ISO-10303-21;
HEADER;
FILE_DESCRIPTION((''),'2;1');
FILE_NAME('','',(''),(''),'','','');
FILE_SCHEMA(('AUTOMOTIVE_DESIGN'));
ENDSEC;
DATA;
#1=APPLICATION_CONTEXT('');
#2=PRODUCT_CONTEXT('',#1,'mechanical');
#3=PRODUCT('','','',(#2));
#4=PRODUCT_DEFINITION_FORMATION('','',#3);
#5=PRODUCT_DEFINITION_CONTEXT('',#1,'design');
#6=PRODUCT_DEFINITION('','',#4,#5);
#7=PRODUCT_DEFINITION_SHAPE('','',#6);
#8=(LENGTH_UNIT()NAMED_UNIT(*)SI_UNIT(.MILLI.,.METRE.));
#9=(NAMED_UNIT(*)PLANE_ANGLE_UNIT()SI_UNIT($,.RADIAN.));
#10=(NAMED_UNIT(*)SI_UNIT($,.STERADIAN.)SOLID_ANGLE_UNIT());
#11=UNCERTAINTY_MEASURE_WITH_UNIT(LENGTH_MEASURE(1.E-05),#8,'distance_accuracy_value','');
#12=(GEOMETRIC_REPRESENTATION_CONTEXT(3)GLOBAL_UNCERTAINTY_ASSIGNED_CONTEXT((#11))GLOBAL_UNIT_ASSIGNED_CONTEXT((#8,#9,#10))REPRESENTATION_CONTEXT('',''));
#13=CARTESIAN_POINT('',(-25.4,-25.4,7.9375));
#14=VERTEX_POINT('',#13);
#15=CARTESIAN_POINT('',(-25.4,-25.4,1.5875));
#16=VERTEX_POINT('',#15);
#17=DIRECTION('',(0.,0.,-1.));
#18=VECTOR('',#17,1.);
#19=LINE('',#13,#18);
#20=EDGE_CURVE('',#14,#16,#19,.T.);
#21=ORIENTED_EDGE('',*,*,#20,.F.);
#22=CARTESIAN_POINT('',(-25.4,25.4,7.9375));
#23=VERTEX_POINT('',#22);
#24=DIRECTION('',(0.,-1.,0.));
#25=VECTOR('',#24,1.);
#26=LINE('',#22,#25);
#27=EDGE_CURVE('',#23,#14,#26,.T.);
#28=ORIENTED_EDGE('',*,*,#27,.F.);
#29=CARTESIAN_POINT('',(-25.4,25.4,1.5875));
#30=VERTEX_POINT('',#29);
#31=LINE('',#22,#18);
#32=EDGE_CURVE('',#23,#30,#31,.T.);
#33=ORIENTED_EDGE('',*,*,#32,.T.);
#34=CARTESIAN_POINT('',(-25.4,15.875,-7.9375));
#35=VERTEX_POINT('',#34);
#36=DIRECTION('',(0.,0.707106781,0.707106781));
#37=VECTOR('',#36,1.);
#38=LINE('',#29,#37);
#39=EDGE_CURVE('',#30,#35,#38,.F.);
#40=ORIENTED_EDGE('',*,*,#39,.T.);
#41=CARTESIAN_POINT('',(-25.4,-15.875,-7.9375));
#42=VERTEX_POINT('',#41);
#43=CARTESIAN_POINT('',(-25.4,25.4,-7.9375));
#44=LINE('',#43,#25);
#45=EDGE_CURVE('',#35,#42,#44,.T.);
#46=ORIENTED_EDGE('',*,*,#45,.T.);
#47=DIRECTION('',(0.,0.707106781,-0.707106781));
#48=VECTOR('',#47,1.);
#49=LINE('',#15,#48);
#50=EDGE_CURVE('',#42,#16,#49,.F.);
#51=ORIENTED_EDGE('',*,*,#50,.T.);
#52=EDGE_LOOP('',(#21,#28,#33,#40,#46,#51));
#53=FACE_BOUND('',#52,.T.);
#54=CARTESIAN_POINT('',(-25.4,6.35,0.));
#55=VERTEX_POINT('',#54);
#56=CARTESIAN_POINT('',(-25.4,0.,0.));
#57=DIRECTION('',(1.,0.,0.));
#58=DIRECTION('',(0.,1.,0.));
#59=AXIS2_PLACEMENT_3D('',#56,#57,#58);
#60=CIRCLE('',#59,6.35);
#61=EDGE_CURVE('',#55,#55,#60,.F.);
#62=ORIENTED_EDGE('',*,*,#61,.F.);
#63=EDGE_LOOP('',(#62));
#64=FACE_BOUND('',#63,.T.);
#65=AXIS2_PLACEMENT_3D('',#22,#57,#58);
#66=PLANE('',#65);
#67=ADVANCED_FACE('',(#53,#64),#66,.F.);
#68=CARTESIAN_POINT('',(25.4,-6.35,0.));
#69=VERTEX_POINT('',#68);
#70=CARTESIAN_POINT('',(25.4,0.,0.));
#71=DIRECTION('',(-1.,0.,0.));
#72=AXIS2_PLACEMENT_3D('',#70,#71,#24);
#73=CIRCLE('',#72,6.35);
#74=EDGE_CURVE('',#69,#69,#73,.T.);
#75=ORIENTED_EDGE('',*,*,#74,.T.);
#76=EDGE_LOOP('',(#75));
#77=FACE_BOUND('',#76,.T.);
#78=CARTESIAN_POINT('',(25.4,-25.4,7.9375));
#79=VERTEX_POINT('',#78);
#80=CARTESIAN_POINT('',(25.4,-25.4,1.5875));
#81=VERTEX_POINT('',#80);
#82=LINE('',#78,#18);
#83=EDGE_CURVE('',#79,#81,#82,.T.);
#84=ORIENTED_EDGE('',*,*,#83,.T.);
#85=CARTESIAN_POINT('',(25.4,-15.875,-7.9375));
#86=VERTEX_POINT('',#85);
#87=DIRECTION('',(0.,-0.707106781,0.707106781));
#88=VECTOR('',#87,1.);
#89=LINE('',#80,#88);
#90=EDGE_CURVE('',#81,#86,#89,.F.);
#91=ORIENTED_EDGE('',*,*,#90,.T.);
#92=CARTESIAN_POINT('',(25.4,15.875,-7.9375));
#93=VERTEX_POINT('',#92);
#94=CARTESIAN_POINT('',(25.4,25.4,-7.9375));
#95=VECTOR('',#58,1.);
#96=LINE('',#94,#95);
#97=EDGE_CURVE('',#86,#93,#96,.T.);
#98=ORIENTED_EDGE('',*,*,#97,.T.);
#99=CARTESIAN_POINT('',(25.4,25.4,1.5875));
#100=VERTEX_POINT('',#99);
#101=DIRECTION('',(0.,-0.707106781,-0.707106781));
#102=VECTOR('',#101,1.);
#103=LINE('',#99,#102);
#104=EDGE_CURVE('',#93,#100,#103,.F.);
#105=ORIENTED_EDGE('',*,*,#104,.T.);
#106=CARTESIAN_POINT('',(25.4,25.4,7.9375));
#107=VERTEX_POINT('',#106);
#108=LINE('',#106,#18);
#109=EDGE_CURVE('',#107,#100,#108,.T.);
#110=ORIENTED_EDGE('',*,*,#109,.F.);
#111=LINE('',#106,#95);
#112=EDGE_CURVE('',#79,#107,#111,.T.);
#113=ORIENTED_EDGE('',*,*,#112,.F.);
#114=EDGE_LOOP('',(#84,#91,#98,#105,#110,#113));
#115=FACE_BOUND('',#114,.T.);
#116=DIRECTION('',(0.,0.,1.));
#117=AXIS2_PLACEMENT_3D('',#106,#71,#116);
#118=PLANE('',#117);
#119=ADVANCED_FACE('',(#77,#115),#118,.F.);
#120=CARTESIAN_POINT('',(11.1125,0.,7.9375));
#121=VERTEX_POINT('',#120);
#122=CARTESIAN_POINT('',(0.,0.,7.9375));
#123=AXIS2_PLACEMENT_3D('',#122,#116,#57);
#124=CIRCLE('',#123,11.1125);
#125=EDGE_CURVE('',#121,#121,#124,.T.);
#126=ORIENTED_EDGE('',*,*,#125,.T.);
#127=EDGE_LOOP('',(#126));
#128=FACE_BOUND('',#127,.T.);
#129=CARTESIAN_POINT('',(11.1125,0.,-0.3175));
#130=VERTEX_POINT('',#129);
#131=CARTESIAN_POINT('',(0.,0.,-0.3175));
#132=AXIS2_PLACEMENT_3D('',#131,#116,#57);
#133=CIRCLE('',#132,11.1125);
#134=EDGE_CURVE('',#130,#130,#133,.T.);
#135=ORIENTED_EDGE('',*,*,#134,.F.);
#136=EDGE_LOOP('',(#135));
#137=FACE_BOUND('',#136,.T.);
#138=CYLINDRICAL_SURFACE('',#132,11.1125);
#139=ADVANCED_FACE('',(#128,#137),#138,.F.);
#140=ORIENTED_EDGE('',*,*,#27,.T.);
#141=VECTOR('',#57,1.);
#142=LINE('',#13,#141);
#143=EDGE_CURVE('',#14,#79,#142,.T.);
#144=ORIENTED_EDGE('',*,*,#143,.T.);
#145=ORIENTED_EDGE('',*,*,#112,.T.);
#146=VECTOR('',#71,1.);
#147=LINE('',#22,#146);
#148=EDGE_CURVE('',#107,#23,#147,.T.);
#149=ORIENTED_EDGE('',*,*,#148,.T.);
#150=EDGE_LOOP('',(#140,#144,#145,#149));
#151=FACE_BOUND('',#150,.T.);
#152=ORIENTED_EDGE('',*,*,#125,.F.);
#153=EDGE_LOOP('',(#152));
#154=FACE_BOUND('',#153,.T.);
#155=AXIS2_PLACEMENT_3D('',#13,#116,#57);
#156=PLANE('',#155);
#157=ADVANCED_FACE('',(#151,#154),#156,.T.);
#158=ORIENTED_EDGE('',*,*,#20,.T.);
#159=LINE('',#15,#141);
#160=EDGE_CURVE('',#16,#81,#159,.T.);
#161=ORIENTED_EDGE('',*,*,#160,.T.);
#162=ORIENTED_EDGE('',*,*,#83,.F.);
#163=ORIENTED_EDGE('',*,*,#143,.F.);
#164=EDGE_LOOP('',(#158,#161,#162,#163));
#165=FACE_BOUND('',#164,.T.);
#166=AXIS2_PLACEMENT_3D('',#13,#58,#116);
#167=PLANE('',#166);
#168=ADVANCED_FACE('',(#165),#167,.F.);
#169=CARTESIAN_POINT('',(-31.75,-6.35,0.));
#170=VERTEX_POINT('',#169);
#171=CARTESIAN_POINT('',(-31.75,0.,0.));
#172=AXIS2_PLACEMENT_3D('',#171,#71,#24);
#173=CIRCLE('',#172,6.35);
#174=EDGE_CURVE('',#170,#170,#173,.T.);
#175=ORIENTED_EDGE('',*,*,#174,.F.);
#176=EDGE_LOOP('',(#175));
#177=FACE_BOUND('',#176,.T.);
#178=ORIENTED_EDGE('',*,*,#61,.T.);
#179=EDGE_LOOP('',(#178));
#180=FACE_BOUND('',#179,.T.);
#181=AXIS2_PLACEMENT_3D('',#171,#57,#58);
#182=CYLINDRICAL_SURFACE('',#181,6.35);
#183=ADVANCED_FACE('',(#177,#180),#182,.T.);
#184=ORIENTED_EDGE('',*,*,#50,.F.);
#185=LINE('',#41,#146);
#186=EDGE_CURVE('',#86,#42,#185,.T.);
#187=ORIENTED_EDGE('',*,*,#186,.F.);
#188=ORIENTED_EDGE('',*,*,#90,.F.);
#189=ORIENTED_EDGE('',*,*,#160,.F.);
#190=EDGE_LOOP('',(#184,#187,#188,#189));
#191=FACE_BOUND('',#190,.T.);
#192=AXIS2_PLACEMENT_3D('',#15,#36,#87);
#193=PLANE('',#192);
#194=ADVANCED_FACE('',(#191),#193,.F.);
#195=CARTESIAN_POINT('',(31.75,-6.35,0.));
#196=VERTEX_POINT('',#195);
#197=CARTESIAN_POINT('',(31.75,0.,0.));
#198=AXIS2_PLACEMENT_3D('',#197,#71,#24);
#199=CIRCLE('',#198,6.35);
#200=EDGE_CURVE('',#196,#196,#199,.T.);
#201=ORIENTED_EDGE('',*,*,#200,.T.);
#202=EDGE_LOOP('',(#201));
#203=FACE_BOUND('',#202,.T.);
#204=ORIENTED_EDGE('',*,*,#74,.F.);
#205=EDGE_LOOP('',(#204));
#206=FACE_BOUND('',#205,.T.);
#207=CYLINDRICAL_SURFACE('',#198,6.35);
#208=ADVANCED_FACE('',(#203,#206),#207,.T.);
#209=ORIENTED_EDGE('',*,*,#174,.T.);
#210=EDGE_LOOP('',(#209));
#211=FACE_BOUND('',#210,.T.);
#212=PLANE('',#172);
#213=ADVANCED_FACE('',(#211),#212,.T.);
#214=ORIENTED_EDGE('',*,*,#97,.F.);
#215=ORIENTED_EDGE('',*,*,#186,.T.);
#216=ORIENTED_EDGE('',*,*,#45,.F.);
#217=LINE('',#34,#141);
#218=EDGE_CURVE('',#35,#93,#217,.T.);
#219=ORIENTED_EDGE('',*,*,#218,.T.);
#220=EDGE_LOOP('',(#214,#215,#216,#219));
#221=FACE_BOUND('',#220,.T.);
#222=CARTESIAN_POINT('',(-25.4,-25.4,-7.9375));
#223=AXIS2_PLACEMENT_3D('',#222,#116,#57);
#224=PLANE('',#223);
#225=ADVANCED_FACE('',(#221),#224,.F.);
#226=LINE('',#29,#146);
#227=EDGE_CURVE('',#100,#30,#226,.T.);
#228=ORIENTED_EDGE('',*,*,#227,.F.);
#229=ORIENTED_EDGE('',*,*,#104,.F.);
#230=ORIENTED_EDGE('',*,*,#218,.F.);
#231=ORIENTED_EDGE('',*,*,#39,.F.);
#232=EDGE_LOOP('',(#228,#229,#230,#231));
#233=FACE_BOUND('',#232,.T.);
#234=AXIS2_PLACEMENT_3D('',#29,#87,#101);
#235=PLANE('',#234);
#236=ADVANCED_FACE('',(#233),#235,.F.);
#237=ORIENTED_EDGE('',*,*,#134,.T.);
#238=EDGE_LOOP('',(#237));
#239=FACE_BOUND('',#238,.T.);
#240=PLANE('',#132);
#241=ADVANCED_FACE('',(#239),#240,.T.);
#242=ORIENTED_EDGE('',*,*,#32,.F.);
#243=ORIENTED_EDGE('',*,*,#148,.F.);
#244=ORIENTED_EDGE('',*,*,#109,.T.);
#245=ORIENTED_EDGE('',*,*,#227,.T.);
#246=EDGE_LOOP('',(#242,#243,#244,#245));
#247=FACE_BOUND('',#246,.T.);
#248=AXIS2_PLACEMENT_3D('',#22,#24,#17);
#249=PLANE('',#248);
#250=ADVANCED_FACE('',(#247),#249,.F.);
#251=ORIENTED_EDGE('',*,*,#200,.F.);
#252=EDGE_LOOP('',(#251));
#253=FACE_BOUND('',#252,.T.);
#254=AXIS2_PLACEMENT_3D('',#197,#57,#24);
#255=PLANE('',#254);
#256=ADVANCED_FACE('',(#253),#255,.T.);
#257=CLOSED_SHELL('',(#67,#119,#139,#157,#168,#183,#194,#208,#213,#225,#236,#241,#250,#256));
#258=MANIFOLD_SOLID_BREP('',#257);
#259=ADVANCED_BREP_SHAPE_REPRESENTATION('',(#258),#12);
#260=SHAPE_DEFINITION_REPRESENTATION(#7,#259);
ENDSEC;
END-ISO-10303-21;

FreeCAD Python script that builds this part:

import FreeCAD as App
import Part
import Sketcher
Q = App.Units.Quantity


def edges_at(feature, points):
    """Names of the edges that pass closest to the given points."""
    edges = feature.Shape.Edges
    near = lambda p: min(range(len(edges)), key=lambda i: edges[i].distToShape(Part.Vertex(*p))[0])
    return sorted({f"Edge{near(p) + 1}" for p in points})


def add_polygon(sketch, points):
    """Adds a closed chain of lines whose ends are joined by coincident constraints."""
    first, n = sketch.GeometryCount, len(points)
    for a, b in zip(points, points[1:] + points[:1]):
        sketch.addGeometry(Part.LineSegment(App.Vector(*a, 0), App.Vector(*b, 0)), False)
    for i in range(n):
        sketch.addConstraint(Sketcher.Constraint("Coincident", first + i, 2, first + (i + 1) % n, 1))

doc = App.newDocument("Part")
params = doc.addObject("Spreadsheet::Sheet", "Params")
for row, (alias, value) in enumerate([
    ("sketch1_width", "2 in"),
    ("pad1_length", "0.625 in"),
    ("sketch2_diameter", "0.875 in"),
    ("pocket1_length", "0.325 in"),
    ("sketch3_diameter", "0.5 in"),
    ("pad2_length", "0.25 in"),
    ("chamfer_size", "0.375 in"),
], start=1):
    params.set(f"A{row}", alias)
    params.set(f"B{row}", "=" + value)
    params.setAlias(f"B{row}", alias)

body = doc.addObject("PartDesign::Body", "Body")

# Sketch on XY plane
sketch1 = body.newObject("Sketcher::SketchObject", "Sketch")
sketch1.AttachmentSupport = (doc.getObject("XY_Plane"), [""])
sketch1.MapMode = "FlatFace"
add_polygon(sketch1, [(-25, 25), (-25, -25), (25, -25), (25, 25)])  # lines 0-3
sketch1.addConstraint([
    Sketcher.Constraint("Vertical", 0),
    Sketcher.Constraint("Horizontal", 1),
    Sketcher.Constraint("Vertical", 2),
    Sketcher.Constraint("Horizontal", 3),
    Sketcher.Constraint("Symmetric", 0, 2, 2, 2, -1, 1),
    Sketcher.Constraint("Equal", 3, 0),
    Sketcher.Constraint("DistanceX", 1, 1, 1, 2, Q("2 in")),
])
sketch1.setExpression("Constraints[10]", "Params.sketch1_width")
pad1 = body.newObject("PartDesign::Pad", "Pad")
pad1.Profile = sketch1
pad1.setExpression("Length", "Params.pad1_length")
pad1.Midplane = True

# Sketch on XY plane
sketch2 = body.newObject("Sketcher::SketchObject", "Sketch001")
sketch2.AttachmentSupport = (doc.getObject("XY_Plane"), [""])
sketch2.MapMode = "FlatFace"
sketch2.AttachmentOffset = App.Placement(App.Vector(0, 0, 0.3125 * 25.4), App.Rotation())
sketch2.addGeometry(Part.Circle(App.Vector(0, 0, 0), App.Vector(0, 0, 1), 11), False)
sketch2.addConstraint([
    Sketcher.Constraint("Coincident", 0, 3, -1, 1),
    Sketcher.Constraint("Diameter", 0, Q("0.875 in")),
])
sketch2.setExpression("Constraints[1]", "Params.sketch2_diameter")
pocket1 = body.newObject("PartDesign::Pocket", "Pocket")
pocket1.Profile = sketch2
pocket1.setExpression("Length", "Params.pocket1_length")

# Sketch on YZ plane
sketch3 = body.newObject("Sketcher::SketchObject", "Sketch002")
sketch3.AttachmentSupport = (doc.getObject("YZ_Plane"), [""])
sketch3.MapMode = "FlatFace"
sketch3.AttachmentOffset = App.Placement(App.Vector(0, 0, -1 * 25.4), App.Rotation())
sketch3.addGeometry(Part.Circle(App.Vector(0, 0, 0), App.Vector(0, 0, 1), 6), False)
sketch3.addConstraint([
    Sketcher.Constraint("Coincident", 0, 3, -1, 1),
    Sketcher.Constraint("Diameter", 0, Q("0.5 in")),
])
sketch3.setExpression("Constraints[1]", "Params.sketch3_diameter")
pad2 = body.newObject("PartDesign::Pad", "Pad001")
pad2.Profile = sketch3
pad2.setExpression("Length", "Params.pad2_length")
pad2.Reversed = True
doc.recompute()

mirrored = body.newObject("PartDesign::Mirrored", "Mirrored")
mirrored.Originals = [pad2]
mirrored.MirrorPlane = (doc.getObject("YZ_Plane"), [""])
body.Tip = mirrored
doc.recompute()

chamfer = body.newObject("PartDesign::Chamfer", "Chamfer")
chamfer.Base = (mirrored, edges_at(mirrored, [(0, 25.4, -7.938), (0, -25.4, -7.938)]))
chamfer.setExpression("Size", "Params.chamfer_size")

doc.recompute()
